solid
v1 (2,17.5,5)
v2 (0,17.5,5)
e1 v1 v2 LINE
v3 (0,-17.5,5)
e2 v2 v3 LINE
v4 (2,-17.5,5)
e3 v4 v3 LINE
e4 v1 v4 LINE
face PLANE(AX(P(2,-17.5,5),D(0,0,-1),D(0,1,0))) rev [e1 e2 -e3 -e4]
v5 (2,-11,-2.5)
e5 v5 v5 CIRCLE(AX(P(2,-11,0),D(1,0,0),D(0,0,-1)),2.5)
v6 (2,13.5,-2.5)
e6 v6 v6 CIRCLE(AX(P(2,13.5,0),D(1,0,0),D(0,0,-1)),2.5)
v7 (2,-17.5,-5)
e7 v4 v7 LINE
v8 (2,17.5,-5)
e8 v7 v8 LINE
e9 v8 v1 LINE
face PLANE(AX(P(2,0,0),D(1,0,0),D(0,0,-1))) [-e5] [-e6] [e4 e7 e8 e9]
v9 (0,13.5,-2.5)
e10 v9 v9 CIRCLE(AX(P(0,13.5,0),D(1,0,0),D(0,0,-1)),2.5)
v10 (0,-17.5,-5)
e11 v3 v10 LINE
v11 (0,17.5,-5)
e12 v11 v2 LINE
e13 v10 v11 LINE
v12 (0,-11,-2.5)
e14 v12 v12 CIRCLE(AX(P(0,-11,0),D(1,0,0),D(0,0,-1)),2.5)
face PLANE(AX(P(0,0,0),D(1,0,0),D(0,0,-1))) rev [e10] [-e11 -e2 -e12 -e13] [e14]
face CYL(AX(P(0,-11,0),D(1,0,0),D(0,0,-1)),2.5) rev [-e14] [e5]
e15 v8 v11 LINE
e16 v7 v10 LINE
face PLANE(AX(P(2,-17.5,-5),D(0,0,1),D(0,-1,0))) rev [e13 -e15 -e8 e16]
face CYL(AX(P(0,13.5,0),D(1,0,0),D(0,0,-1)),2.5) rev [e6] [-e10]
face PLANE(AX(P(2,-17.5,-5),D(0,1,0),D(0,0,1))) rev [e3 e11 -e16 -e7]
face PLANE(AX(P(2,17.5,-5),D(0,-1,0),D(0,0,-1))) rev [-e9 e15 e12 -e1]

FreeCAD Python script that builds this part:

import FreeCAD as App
import Part
import Sketcher
from FreeCAD import Vector
Q = App.Units.Quantity

doc = App.newDocument("Part")
body = doc.addObject("PartDesign::Body", "Body")

sketch1 = doc.addObject("Sketcher::SketchObject", "Sketch")
body.addObject(sketch1)
sketch1.AttachmentSupport = (doc.YZ_Plane, [""])
sketch1.MapMode = "FlatFace"
sketch1.addGeometry(Part.LineSegment(Vector(18, 5, 0), Vector(-18, 5, 0)), False)
sketch1.addGeometry(Part.LineSegment(Vector(-18, 5, 0), Vector(-18, -5, 0)), False)
sketch1.addGeometry(Part.LineSegment(Vector(-18, -5, 0), Vector(18, -5, 0)), False)
sketch1.addGeometry(Part.LineSegment(Vector(18, -5, 0), Vector(18, 5, 0)), False)
sketch1.addConstraint(Sketcher.Constraint("Coincident", 0, 2, 1, 1))
sketch1.addConstraint(Sketcher.Constraint("Coincident", 1, 2, 2, 1))
sketch1.addConstraint(Sketcher.Constraint("Coincident", 2, 2, 3, 1))
sketch1.addConstraint(Sketcher.Constraint("Coincident", 3, 2, 0, 1))
sketch1.addConstraint(Sketcher.Constraint("Horizontal", 0))
sketch1.addConstraint(Sketcher.Constraint("Vertical", 1))
sketch1.addConstraint(Sketcher.Constraint("Horizontal", 2))
sketch1.addConstraint(Sketcher.Constraint("Vertical", 3))
sketch1.addConstraint(Sketcher.Constraint("Symmetric", 0, 2, 2, 2, -1, 1))
sketch1.addConstraint(Sketcher.Constraint("DistanceX", 0, 2, 0, 1, Q("35 mm")))
sketch1.addConstraint(Sketcher.Constraint("DistanceY", 1, 2, 1, 1, Q("10 mm")))
pad1 = doc.addObject("PartDesign::Pad", "Pad")
body.addObject(pad1)
pad1.Profile = sketch1
pad1.Length = 2

sketch2 = doc.addObject("Sketcher::SketchObject", "Sketch001")
body.addObject(sketch2)
sketch2.AttachmentSupport = (doc.YZ_Plane, [""])
sketch2.MapMode = "FlatFace"
sketch2.AttachmentOffset = App.Placement(Vector(0, 0, 2), App.Rotation())
sketch2.addGeometry(Part.Circle(Vector(-11, 0, 0), Vector(0, 0, 1), 2.5), False)
sketch2.addGeometry(Part.Circle(Vector(13.5, 0, 0), Vector(0, 0, 1), 2.5), False)
sketch2.addConstraint(Sketcher.Constraint("Equal", 0, 1))
sketch2.addConstraint(Sketcher.Constraint("PointOnObject", 0, 3, -1))
sketch2.addConstraint(Sketcher.Constraint("PointOnObject", 1, 3, -1))
sketch2.addConstraint(Sketcher.Constraint("Diameter", 0, Q("5 mm")))
sketch2.addConstraint(Sketcher.Constraint("DistanceX", 0, 3, -1, 1, Q("11 mm")))
sketch2.addConstraint(Sketcher.Constraint("DistanceX", -1, 1, 1, 3, Q("13.5 mm")))
pocket1 = doc.addObject("PartDesign::Pocket", "Pocket")
body.addObject(pocket1)
pocket1.Profile = sketch2
pocket1.Length = 2

doc.recompute()
